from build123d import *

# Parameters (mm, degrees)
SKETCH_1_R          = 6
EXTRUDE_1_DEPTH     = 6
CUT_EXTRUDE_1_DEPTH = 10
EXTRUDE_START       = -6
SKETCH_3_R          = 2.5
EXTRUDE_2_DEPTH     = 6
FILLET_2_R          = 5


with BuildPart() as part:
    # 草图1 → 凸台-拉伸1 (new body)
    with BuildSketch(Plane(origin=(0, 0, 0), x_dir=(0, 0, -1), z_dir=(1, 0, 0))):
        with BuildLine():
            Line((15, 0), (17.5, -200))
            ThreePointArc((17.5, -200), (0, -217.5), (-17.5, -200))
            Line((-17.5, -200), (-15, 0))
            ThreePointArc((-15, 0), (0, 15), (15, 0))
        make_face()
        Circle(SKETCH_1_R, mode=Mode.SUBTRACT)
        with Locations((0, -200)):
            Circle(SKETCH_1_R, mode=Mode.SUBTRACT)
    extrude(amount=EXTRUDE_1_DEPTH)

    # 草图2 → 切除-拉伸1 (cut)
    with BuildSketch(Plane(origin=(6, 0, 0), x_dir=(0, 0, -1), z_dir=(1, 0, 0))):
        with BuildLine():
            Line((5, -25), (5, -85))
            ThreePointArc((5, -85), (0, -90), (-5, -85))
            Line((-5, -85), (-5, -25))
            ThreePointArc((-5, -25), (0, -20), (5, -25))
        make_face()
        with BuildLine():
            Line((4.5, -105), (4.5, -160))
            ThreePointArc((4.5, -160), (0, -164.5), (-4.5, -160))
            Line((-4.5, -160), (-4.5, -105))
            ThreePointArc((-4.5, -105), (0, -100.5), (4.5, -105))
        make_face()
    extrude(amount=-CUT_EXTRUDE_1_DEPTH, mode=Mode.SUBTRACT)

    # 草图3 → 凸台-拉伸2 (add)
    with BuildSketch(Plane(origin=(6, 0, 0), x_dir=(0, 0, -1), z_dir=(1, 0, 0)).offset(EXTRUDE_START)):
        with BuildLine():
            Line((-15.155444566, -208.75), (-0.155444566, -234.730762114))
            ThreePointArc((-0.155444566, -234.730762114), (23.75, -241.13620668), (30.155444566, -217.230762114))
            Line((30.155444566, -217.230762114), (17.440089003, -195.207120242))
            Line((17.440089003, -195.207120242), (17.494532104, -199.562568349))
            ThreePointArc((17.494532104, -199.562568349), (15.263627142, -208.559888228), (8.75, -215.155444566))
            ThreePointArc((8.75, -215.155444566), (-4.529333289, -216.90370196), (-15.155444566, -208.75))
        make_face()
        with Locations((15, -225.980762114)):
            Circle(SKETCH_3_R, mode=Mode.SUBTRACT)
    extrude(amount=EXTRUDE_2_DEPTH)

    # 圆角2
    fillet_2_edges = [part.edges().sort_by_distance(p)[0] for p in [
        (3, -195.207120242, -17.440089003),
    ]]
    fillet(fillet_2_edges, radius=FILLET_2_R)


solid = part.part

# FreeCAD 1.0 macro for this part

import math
import FreeCAD as App
import Part
import Sketcher
from FreeCAD import Vector
Q = App.Units.Quantity


def edges_at(feature, points):
    """Names of the edges that pass closest to the given points."""
    edges = feature.Shape.Edges
    near = lambda p: min(range(len(edges)), key=lambda i: edges[i].distToShape(Part.Vertex(*p))[0])
    return sorted({f"Edge{near(p) + 1}" for p in points})

doc = App.newDocument("Part")
body = doc.addObject("PartDesign::Body", "Body")

# Sketch on YZ plane
sketch1 = doc.addObject("Sketcher::SketchObject", "Sketch")
body.addObject(sketch1)
sketch1.AttachmentSupport = (doc.YZ_Plane, [""])
sketch1.MapMode = "FlatFace"
sketch1.addGeometry([
    Part.LineSegment(Vector(-200, -18, 0), Vector(0, -15, 0)),  # 0
    Part.ArcOfCircle(Part.Circle(Vector(0, 0, 0), Vector(0, 0, 1), 15), math.radians(-90), math.radians(90)),  # 1
    Part.LineSegment(Vector(0, 15, 0), Vector(-200, 18, 0)),  # 2
    Part.ArcOfCircle(Part.Circle(Vector(-200, 0, 0), Vector(0, 0, 1), 18), math.radians(90), math.radians(270)),  # 3
    Part.Circle(Vector(-200, 0, 0), Vector(0, 0, 1), 6),  # 4
    Part.Circle(Vector(0, 0, 0), Vector(0, 0, 1), 6),  # 5
], False)
sketch1.addConstraint([
    Sketcher.Constraint("Coincident", 0, 2, 1, 1),
    Sketcher.Constraint("Coincident", 1, 2, 2, 1),
    Sketcher.Constraint("Coincident", 2, 2, 3, 1),
    Sketcher.Constraint("Coincident", 3, 2, 0, 1),
    Sketcher.Constraint("Coincident", 1, 3, -1, 1),
    Sketcher.Constraint("Coincident", 5, 3, -1, 1),
    Sketcher.Constraint("Coincident", 4, 3, 3, 3),
    Sketcher.Constraint("Equal", 4, 5),
    Sketcher.Constraint("Symmetric", 2, 2, 3, 2, -1),
    Sketcher.Constraint("PointOnObject", 0, 2, -2),
    Sketcher.Constraint("PointOnObject", 1, 2, -2),
    Sketcher.Constraint("Vertical", 4, 3, 2, 2),
    Sketcher.Constraint("Diameter", 4, Q("12 mm")),
    Sketcher.Constraint("Radius", 1, Q("15 mm")),
    Sketcher.Constraint("Radius", 3, Q("17.5 mm")),
    Sketcher.Constraint("DistanceX", 3, 3, -1, 1, Q("200 mm")),
])
pad1 = doc.addObject("PartDesign::Pad", "Pad")
body.addObject(pad1)
pad1.Profile = sketch1
pad1.Length = 6

# Sketch on YZ plane
sketch2 = doc.addObject("Sketcher::SketchObject", "Sketch001")
body.addObject(sketch2)
sketch2.AttachmentSupport = (doc.YZ_Plane, [""])
sketch2.MapMode = "FlatFace"
sketch2.AttachmentOffset = App.Placement(Vector(0, 0, 6), App.Rotation())
sketch2.addGeometry([
    Part.LineSegment(Vector(-85, -5, 0), Vector(-25, -5, 0)),  # 0
    Part.ArcOfCircle(Part.Circle(Vector(-25, 0, 0), Vector(0, 0, 1), 5), math.radians(-90), math.radians(90)),  # 1
    Part.LineSegment(Vector(-25, 5, 0), Vector(-85, 5, 0)),  # 2
    Part.ArcOfCircle(Part.Circle(Vector(-85, 0, 0), Vector(0, 0, 1), 5), math.radians(90), math.radians(270)),  # 3
    Part.LineSegment(Vector(-160, -4.5, 0), Vector(-105, -4.5, 0)),  # 4
    Part.ArcOfCircle(Part.Circle(Vector(-105, 0, 0), Vector(0, 0, 1), 4.5), math.radians(-90), math.radians(90)),  # 5
    Part.LineSegment(Vector(-105, 4.5, 0), Vector(-160, 4.5, 0)),  # 6
    Part.ArcOfCircle(Part.Circle(Vector(-160, 0, 0), Vector(0, 0, 1), 4.5), math.radians(90), math.radians(270)),  # 7
], False)
sketch2.addConstraint([
    Sketcher.Constraint("Tangent", 0, 2, 1, 1),
    Sketcher.Constraint("Tangent", 1, 2, 2, 1),
    Sketcher.Constraint("Tangent", 2, 2, 3, 1),
    Sketcher.Constraint("Tangent", 3, 2, 0, 1),
    Sketcher.Constraint("Tangent", 4, 2, 5, 1),
    Sketcher.Constraint("Tangent", 5, 2, 6, 1),
    Sketcher.Constraint("Tangent", 6, 2, 7, 1),
    Sketcher.Constraint("Tangent", 7, 2, 4, 1),
    Sketcher.Constraint("Horizontal", 0),
    Sketcher.Constraint("Horizontal", 2),
    Sketcher.Constraint("Horizontal", 4),
    Sketcher.Constraint("Horizontal", 6),
    Sketcher.Constraint("PointOnObject", 1, 3, -1),
    Sketcher.Constraint("PointOnObject", 5, 3, -1),
    Sketcher.Constraint("Radius", 1, Q("5 mm")),
    Sketcher.Constraint("Radius", 5, Q("4.5 mm")),
    Sketcher.Constraint("DistanceX", 0, 1, 0, 2, Q("60 mm")),
    Sketcher.Constraint("DistanceX", 4, 1, 4, 2, Q("55 mm")),
    Sketcher.Constraint("DistanceX", 1, 3, -1, 1, Q("25 mm")),
    Sketcher.Constraint("DistanceX", 5, 3, -1, 1, Q("105 mm")),
])
pocket1 = doc.addObject("PartDesign::Pocket", "Pocket")
body.addObject(pocket1)
pocket1.Profile = sketch2
pocket1.Length = 10

# Sketch on YZ plane
sketch3 = doc.addObject("Sketcher::SketchObject", "Sketch002")
body.addObject(sketch3)
sketch3.AttachmentSupport = (doc.YZ_Plane, [""])
sketch3.MapMode = "FlatFace"
sketch3.addGeometry([
    Part.LineSegment(Vector(-208.8, 15.2, 0), Vector(-234.7, 0.2, 0)),  # 0
    Part.ArcOfCircle(Part.Circle(Vector(-226, -15, 0), Vector(0, 0, 1), 17.5), math.radians(120), math.radians(300)),  # 1
    Part.LineSegment(Vector(-217.2, -30.2, 0), Vector(-195.2, -17.4, 0)),  # 2
    Part.LineSegment(Vector(-195.2, -17.4, 0), Vector(-199.6, -17.5, 0)),  # 3
    Part.ArcOfCircle(Part.Circle(Vector(-200, 0, 0), Vector(0, 0, 1), 17.5), math.radians(-150), math.radians(-89)),  # 4
    Part.ArcOfCircle(Part.Circle(Vector(-200, 0, 0), Vector(0, 0, 1), 17.5), math.radians(120), math.radians(210)),  # 5
    Part.Circle(Vector(-226, -15, 0), Vector(0, 0, 1), 2.5),  # 6
], False)
sketch3.addConstraint([
    Sketcher.Constraint("Tangent", 0, 2, 1, 1),
    Sketcher.Constraint("Tangent", 1, 2, 2, 1),
    Sketcher.Constraint("Coincident", 2, 2, 3, 1),
    Sketcher.Constraint("Coincident", 3, 2, 4, 2),
    Sketcher.Constraint("Tangent", 4, 1, 5, 2),
    Sketcher.Constraint("Tangent", 5, 1, 0, 1),
    Sketcher.Constraint("Coincident", 6, 3, 1, 3),
    Sketcher.Constraint("Equal", 1, 4),
    Sketcher.Constraint("Equal", 4, 5),
    Sketcher.Constraint("PointOnObject", 4, 3, -1),
    Sketcher.Constraint("Parallel", 0, 2),
    Sketcher.Constraint("Diameter", 6, Q("5 mm")),
    Sketcher.Constraint("Radius", 1, Q("17.5 mm")),
    Sketcher.Constraint("Angle", 0, Q("-150 deg")),
    Sketcher.Constraint("Distance", 0, Q("30 mm")),
    Sketcher.Constraint("DistanceX", 4, 3, -1, 1, Q("200 mm")),
    Sketcher.Constraint("DistanceY", 4, 1, -1, 1, Q("8.75 mm")),
    Sketcher.Constraint("Distance", 2, Q("25.430711 mm")),
    Sketcher.Constraint("Distance", 3, Q("4.355788 mm")),
])
pad2 = doc.addObject("PartDesign::Pad", "Pad001")
body.addObject(pad2)
pad2.Profile = sketch3
pad2.Length = 6
doc.recompute()

fillet = doc.addObject("PartDesign::Fillet", "Fillet")
body.addObject(fillet)
fillet.Base = (pad2, edges_at(pad2, [(3, -195.207, -17.44)]))
fillet.Radius = 5

doc.recompute()
